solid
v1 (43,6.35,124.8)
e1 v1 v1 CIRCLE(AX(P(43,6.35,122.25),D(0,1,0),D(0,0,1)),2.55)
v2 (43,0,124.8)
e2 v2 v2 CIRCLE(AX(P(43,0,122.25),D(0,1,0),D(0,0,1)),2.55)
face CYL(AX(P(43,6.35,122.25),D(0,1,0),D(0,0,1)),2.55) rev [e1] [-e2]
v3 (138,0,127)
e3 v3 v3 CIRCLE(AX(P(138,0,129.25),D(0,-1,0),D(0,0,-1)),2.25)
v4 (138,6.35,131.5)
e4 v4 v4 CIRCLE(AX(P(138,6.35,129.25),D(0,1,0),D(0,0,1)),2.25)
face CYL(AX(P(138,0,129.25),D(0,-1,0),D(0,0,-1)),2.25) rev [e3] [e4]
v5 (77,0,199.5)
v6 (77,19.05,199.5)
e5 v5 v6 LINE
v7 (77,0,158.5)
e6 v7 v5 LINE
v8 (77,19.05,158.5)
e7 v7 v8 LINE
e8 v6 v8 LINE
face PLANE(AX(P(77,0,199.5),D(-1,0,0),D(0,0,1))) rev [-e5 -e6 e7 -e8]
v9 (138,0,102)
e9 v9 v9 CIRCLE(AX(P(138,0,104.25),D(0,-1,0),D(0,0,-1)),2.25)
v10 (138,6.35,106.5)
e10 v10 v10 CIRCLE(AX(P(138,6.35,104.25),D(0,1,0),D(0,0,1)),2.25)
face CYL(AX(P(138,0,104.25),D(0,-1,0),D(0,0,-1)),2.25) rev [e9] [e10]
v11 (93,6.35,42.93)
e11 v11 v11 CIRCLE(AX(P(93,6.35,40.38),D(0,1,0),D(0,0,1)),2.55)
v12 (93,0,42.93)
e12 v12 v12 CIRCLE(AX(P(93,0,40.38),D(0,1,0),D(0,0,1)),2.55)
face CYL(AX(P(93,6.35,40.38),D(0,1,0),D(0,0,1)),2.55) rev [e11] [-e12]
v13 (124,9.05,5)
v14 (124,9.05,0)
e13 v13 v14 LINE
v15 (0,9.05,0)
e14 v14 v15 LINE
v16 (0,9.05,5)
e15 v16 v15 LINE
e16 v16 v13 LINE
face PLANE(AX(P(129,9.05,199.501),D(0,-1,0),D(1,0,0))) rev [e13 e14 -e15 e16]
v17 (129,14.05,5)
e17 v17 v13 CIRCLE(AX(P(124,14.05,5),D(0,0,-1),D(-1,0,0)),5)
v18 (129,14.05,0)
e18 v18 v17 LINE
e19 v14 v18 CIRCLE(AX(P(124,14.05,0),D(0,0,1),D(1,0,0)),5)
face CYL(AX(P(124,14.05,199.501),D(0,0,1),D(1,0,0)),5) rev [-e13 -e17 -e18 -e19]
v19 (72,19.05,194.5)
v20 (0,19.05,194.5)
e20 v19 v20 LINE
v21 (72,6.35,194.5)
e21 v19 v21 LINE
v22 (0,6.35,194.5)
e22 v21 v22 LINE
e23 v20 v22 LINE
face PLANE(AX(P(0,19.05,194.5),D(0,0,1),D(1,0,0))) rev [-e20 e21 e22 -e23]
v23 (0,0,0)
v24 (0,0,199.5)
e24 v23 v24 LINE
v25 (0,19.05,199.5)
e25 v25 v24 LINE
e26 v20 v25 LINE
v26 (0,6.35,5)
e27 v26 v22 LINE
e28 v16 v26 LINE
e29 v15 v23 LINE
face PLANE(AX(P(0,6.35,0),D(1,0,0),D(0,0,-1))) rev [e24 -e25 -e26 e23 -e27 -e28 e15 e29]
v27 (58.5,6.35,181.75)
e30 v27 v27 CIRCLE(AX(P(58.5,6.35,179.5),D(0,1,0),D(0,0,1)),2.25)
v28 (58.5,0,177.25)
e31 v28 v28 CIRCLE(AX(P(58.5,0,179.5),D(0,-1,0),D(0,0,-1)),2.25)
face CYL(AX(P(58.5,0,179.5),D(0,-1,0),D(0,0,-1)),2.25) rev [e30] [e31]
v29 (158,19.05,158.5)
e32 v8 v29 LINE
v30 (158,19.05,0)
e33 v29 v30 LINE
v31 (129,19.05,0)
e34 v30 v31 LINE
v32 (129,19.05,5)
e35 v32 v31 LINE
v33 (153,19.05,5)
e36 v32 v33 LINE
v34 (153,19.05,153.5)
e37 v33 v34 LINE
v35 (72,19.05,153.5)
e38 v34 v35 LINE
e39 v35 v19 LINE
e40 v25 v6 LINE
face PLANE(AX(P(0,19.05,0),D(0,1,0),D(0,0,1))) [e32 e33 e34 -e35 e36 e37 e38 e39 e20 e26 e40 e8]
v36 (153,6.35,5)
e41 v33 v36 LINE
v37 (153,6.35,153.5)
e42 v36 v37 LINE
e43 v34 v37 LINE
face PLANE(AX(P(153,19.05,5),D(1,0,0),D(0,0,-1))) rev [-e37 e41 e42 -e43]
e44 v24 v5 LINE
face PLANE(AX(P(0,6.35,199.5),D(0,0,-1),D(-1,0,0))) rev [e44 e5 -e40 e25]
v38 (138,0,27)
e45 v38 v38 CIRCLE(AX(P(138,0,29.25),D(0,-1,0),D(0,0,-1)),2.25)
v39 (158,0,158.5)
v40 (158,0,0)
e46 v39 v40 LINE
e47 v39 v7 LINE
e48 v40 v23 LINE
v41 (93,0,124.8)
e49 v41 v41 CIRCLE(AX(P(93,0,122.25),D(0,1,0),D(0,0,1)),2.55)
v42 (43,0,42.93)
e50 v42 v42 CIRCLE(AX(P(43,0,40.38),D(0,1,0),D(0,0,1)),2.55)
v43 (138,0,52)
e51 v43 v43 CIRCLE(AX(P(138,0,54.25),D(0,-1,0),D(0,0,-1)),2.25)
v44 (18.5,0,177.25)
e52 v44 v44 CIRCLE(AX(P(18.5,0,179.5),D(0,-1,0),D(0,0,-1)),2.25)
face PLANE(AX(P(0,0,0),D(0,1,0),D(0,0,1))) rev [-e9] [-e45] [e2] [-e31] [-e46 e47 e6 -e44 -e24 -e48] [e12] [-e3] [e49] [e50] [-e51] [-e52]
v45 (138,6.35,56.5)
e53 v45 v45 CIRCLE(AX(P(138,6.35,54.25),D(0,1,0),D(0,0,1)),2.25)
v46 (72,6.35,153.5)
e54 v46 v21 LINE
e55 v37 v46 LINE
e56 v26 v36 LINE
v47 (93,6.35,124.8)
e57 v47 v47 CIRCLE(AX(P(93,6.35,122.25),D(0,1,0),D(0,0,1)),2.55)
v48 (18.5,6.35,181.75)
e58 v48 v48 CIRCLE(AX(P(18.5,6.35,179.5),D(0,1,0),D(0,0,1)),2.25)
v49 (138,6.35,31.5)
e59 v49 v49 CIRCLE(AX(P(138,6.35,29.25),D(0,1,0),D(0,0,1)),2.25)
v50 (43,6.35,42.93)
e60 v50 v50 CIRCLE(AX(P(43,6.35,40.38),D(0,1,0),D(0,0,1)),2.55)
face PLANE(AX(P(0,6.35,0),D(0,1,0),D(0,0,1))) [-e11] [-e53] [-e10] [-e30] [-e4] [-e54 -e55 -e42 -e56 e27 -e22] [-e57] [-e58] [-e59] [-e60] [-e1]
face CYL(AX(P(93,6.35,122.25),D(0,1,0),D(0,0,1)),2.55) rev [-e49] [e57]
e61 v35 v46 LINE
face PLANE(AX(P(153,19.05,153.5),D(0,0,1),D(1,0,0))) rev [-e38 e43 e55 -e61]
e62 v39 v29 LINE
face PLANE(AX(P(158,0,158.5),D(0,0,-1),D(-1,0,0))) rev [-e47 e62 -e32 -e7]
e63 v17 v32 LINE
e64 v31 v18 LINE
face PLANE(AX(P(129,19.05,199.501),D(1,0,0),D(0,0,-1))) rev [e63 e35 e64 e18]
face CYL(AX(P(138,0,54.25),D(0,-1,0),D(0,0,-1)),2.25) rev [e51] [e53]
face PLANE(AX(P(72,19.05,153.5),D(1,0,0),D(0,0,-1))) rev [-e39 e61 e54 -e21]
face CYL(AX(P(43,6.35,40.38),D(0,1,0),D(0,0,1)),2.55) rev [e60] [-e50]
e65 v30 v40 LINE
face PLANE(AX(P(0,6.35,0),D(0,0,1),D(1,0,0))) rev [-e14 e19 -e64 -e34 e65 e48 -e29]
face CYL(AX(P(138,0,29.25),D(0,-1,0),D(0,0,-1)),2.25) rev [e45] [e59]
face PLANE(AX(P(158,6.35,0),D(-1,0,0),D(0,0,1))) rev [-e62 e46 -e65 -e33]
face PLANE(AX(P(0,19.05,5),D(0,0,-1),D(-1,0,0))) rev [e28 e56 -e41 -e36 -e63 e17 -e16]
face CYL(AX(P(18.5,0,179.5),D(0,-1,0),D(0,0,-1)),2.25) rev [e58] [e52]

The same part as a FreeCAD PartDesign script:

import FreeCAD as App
import Part
import Sketcher

V = App.Vector


def edges_at(feature, points):
    """Names of the edges that pass closest to the given points."""
    edges = feature.Shape.Edges
    near = lambda p: min(range(len(edges)), key=lambda i: edges[i].distToShape(Part.Vertex(*p))[0])
    return sorted({f"Edge{near(p) + 1}" for p in points})

doc = App.newDocument("Part")
body = doc.addObject("PartDesign::Body", "Body")

sketch1 = body.newObject("Sketcher::SketchObject", "Sketch")
sketch1.AttachmentSupport = (doc.getObject("XZ_Plane"), [""])
sketch1.MapMode = "FlatFace"
sketch1.addGeometry([
    Part.LineSegment(V(0, 0, 0), V(0, 199.5, 0)),
    Part.LineSegment(V(0, 199.5, 0), V(158, 199.5, 0)),
    Part.LineSegment(V(158, 199.5, 0), V(158, 0, 0)),
    Part.LineSegment(V(158, 0, 0), V(0, 0, 0)),
], False)
sketch1.addConstraint([
    Sketcher.Constraint("Coincident", 0, 2, 1, 1),
    Sketcher.Constraint("Coincident", 1, 2, 2, 1),
    Sketcher.Constraint("Coincident", 2, 2, 3, 1),
    Sketcher.Constraint("Coincident", 3, 2, 0, 1),
    Sketcher.Constraint("Vertical", 0),
    Sketcher.Constraint("Horizontal", 1),
    Sketcher.Constraint("Vertical", 2),
    Sketcher.Constraint("Horizontal", 3),
    Sketcher.Constraint("Coincident", 3, 2, -1, 1),
    Sketcher.Constraint("DistanceX", 1, 1, 1, 2, 158.0),
    Sketcher.Constraint("DistanceY", 0, 1, 0, 2, 199.5),
])
pad1 = body.newObject("PartDesign::Pad", "Pad")
pad1.Profile = sketch1
pad1.Length = 6.35
pad1.Reversed = True

sketch2 = body.newObject("Sketcher::SketchObject", "Sketch001")
sketch2.AttachmentSupport = (doc.getObject("XZ_Plane"), [""])
sketch2.MapMode = "FlatFace"
sketch2.AttachmentOffset = App.Placement(V(0, 0, -6.35), App.Rotation())
sketch2.addGeometry([
    Part.LineSegment(V(77, 158.5, 0), V(77, 199.5, 0)),
    Part.LineSegment(V(77, 199.5, 0), V(158, 199.5, 0)),
    Part.LineSegment(V(158, 199.5, 0), V(158, 158.5, 0)),
    Part.LineSegment(V(158, 158.5, 0), V(77, 158.5, 0)),
], False)
sketch2.addConstraint([
    Sketcher.Constraint("Coincident", 0, 2, 1, 1),
    Sketcher.Constraint("Coincident", 1, 2, 2, 1),
    Sketcher.Constraint("Coincident", 2, 2, 3, 1),
    Sketcher.Constraint("Coincident", 3, 2, 0, 1),
    Sketcher.Constraint("Vertical", 0),
    Sketcher.Constraint("Horizontal", 1),
    Sketcher.Constraint("Vertical", 2),
    Sketcher.Constraint("Horizontal", 3),
    Sketcher.Constraint("DistanceX", 1, 1, 1, 2, 81.0),
    Sketcher.Constraint("DistanceY", 0, 1, 0, 2, 41.0),
    Sketcher.Constraint("DistanceX", -1, 1, 0, 2, 77.0),
    Sketcher.Constraint("DistanceY", -1, 1, 0, 2, 199.5),
])
pocket1 = body.newObject("PartDesign::Pocket", "Pocket")
pocket1.Profile = sketch2
pocket1.Type = "ThroughAll"
pocket1.Reversed = True

sketch3 = body.newObject("Sketcher::SketchObject", "Sketch002")
sketch3.AttachmentSupport = (doc.getObject("XZ_Plane"), [""])
sketch3.MapMode = "FlatFace"
sketch3.AttachmentOffset = App.Placement(V(0, 0, -6.35), App.Rotation())
sketch3.addGeometry([
    Part.LineSegment(V(0, 0, 0), V(0, 5, 0)),
    Part.LineSegment(V(0, 5, 0), V(153, 5, 0)),
    Part.LineSegment(V(153, 5, 0), V(153, 153.5, 0)),
    Part.LineSegment(V(153, 153.5, 0), V(72, 153.5, 0)),
    Part.LineSegment(V(72, 153.5, 0), V(72, 194.5, 0)),
    Part.LineSegment(V(72, 194.5, 0), V(0, 194.5, 0)),
    Part.LineSegment(V(0, 194.5, 0), V(0, 199.5, 0)),
    Part.LineSegment(V(0, 199.5, 0), V(77, 199.5, 0)),
    Part.LineSegment(V(77, 199.5, 0), V(77, 158.5, 0)),
    Part.LineSegment(V(77, 158.5, 0), V(158, 158.5, 0)),
    Part.LineSegment(V(158, 158.5, 0), V(158, 0, 0)),
    Part.LineSegment(V(158, 0, 0), V(0, 0, 0)),
], False)
sketch3.addConstraint([
    Sketcher.Constraint("Coincident", 0, 2, 1, 1),
    Sketcher.Constraint("Coincident", 1, 2, 2, 1),
    Sketcher.Constraint("Coincident", 2, 2, 3, 1),
    Sketcher.Constraint("Coincident", 3, 2, 4, 1),
    Sketcher.Constraint("Coincident", 4, 2, 5, 1),
    Sketcher.Constraint("Coincident", 5, 2, 6, 1),
    Sketcher.Constraint("Coincident", 6, 2, 7, 1),
    Sketcher.Constraint("Coincident", 7, 2, 8, 1),
    Sketcher.Constraint("Coincident", 8, 2, 9, 1),
    Sketcher.Constraint("Coincident", 9, 2, 10, 1),
    Sketcher.Constraint("Coincident", 10, 2, 11, 1),
    Sketcher.Constraint("Coincident", 11, 2, 0, 1),
    Sketcher.Constraint("Vertical", 0),
    Sketcher.Constraint("Horizontal", 1),
    Sketcher.Constraint("Vertical", 2),
    Sketcher.Constraint("Horizontal", 3),
    Sketcher.Constraint("Vertical", 4),
    Sketcher.Constraint("Horizontal", 5),
    Sketcher.Constraint("Vertical", 6),
    Sketcher.Constraint("Horizontal", 7),
    Sketcher.Constraint("Vertical", 8),
    Sketcher.Constraint("Horizontal", 9),
    Sketcher.Constraint("Vertical", 10),
    Sketcher.Constraint("Horizontal", 11),
    Sketcher.Constraint("Coincident", 11, 2, -1, 1),
    Sketcher.Constraint("PointOnObject", 5, 2, -2),
    Sketcher.Constraint("Equal", 3, 9),
    Sketcher.Constraint("Equal", 0, 6),
    Sketcher.Constraint("Equal", 4, 8),
    Sketcher.Constraint("DistanceX", 1, 1, 1, 2, 153.0),
    Sketcher.Constraint("DistanceX", 3, 2, 3, 1, 81.0),
    Sketcher.Constraint("DistanceX", 7, 1, 7, 2, 77.0),
    Sketcher.Constraint("DistanceY", 0, 1, 0, 2, 5.0),
    Sketcher.Constraint("DistanceY", 4, 1, 4, 2, 41.0),
    Sketcher.Constraint("DistanceY", 2, 1, 2, 2, 148.5),
])
pad2 = body.newObject("PartDesign::Pad", "Pad001")
pad2.Profile = sketch3
pad2.Length = 12.7
pad2.Reversed = True

sketch4 = body.newObject("Sketcher::SketchObject", "Sketch003")
sketch4.AttachmentSupport = (doc.getObject("XZ_Plane"), [""])
sketch4.MapMode = "FlatFace"
sketch4.addGeometry([
    Part.Circle(V(138, 54.25, 0), V(0, 0, 1), 2.25),
    Part.Circle(V(18.5, 179.5, 0), V(0, 0, 1), 2.25),
    Part.Circle(V(58.5, 179.5, 0), V(0, 0, 1), 2.25),
    Part.Circle(V(138, 129.25, 0), V(0, 0, 1), 2.25),
    Part.Circle(V(138, 104.25, 0), V(0, 0, 1), 2.25),
    Part.Circle(V(138, 29.25, 0), V(0, 0, 1), 2.25),
], False)
sketch4.addConstraint([
    Sketcher.Constraint("Equal", 0, 1),
    Sketcher.Constraint("Equal", 1, 2),
    Sketcher.Constraint("Equal", 2, 3),
    Sketcher.Constraint("Equal", 3, 4),
    Sketcher.Constraint("Equal", 4, 5),
    Sketcher.Constraint("Horizontal", 1, 3, 2, 3),
    Sketcher.Constraint("Vertical", 0, 3, 3, 3),
    Sketcher.Constraint("Vertical", 3, 3, 4, 3),
    Sketcher.Constraint("Vertical", 4, 3, 5, 3),
    Sketcher.Constraint("Diameter", 0, 4.5),
    Sketcher.Constraint("DistanceX", -1, 1, 0, 3, 138.0),
    Sketcher.Constraint("DistanceX", 1, 3, 2, 3, 40.0),
    Sketcher.Constraint("DistanceY", 0, 3, 3, 3, 75.0),
    Sketcher.Constraint("DistanceY", 4, 3, 3, 3, 25.0),
    Sketcher.Constraint("DistanceY", 5, 3, 0, 3, 25.0),
    Sketcher.Constraint("DistanceX", -1, 1, 1, 3, 18.5),
    Sketcher.Constraint("DistanceY", -1, 1, 1, 3, 179.5),
    Sketcher.Constraint("DistanceY", -1, 1, 0, 3, 54.25),
])
doc.recompute()
hole = body.newObject("PartDesign::Hole", "Hole")
hole.Profile = sketch4
hole.ThreadType = "None"
hole.Diameter = 4.5
hole.DepthType = "Dimension"
hole.Depth = 6.35
hole.DrillPoint = "Flat"

sketch5 = body.newObject("Sketcher::SketchObject", "Sketch004")
sketch5.AttachmentSupport = (doc.getObject("XY_Plane"), [""])
sketch5.MapMode = "FlatFace"
sketch5.addGeometry([
    Part.LineSegment(V(129, 19.05, 0), V(129, 9.05, 0)),
    Part.LineSegment(V(129, 9.05, 0), V(0, 9.05, 0)),
    Part.LineSegment(V(0, 9.05, 0), V(0, 19.05, 0)),
    Part.LineSegment(V(0, 19.05, 0), V(129, 19.05, 0)),
], False)
sketch5.addConstraint([
    Sketcher.Constraint("Coincident", 0, 2, 1, 1),
    Sketcher.Constraint("Coincident", 1, 2, 2, 1),
    Sketcher.Constraint("Coincident", 2, 2, 3, 1),
    Sketcher.Constraint("Coincident", 3, 2, 0, 1),
    Sketcher.Constraint("Vertical", 0),
    Sketcher.Constraint("Horizontal", 1),
    Sketcher.Constraint("Vertical", 2),
    Sketcher.Constraint("Horizontal", 3),
    Sketcher.Constraint("PointOnObject", 1, 2, -2),
    Sketcher.Constraint("DistanceX", 1, 2, 1, 1, 129.0),
    Sketcher.Constraint("DistanceY", 0, 2, 0, 1, 10.0),
    Sketcher.Constraint("DistanceY", -1, 1, 0, 2, 9.05),
])
pocket2 = body.newObject("PartDesign::Pocket", "Pocket001")
pocket2.Profile = sketch5
pocket2.Type = "UpToFirst"
pocket2.Reversed = True
doc.recompute()

fillet = body.newObject("PartDesign::Fillet", "Fillet")
fillet.Base = (pocket2, edges_at(pocket2, [(129, 9.05, 2.5)]))
fillet.Radius = 5

sketch6 = body.newObject("Sketcher::SketchObject", "Sketch005")
sketch6.AttachmentSupport = (doc.getObject("XZ_Plane"), [""])
sketch6.MapMode = "FlatFace"
sketch6.AttachmentOffset = App.Placement(V(0, 0, -6.35), App.Rotation())
sketch6.addGeometry([
    Part.Circle(V(43, 40.38, 0), V(0, 0, 1), 2.55),
    Part.Circle(V(43, 122.25, 0), V(0, 0, 1), 2.55),
    Part.Circle(V(93, 122.25, 0), V(0, 0, 1), 2.55),
    Part.Circle(V(93, 40.38, 0), V(0, 0, 1), 2.55),
], False)
sketch6.addConstraint([
    Sketcher.Constraint("Equal", 0, 1),
    Sketcher.Constraint("Equal", 1, 2),
    Sketcher.Constraint("Equal", 2, 3),
    Sketcher.Constraint("Horizontal", 1, 3, 2, 3),
    Sketcher.Constraint("Horizontal", 0, 3, 3, 3),
    Sketcher.Constraint("Vertical", 0, 3, 1, 3),
    Sketcher.Constraint("Vertical", 2, 3, 3, 3),
    Sketcher.Constraint("Diameter", 0, 5.1),
    Sketcher.Constraint("DistanceX", -1, 1, 0, 3, 43.0),
    Sketcher.Constraint("DistanceX", -1, 1, 2, 3, 93.0),
    Sketcher.Constraint("DistanceY", -1, 1, 0, 3, 40.38),
    Sketcher.Constraint("DistanceY", -1, 1, 1, 3, 122.25),
])
doc.recompute()
hole2 = body.newObject("PartDesign::Hole", "Hole001")
hole2.Profile = sketch6
hole2.ThreadType = "None"
hole2.Diameter = 5.1
hole2.DepthType = "Dimension"
hole2.Depth = 6.35
hole2.DrillPoint = "Flat"
hole2.Reversed = True

doc.recompute()
